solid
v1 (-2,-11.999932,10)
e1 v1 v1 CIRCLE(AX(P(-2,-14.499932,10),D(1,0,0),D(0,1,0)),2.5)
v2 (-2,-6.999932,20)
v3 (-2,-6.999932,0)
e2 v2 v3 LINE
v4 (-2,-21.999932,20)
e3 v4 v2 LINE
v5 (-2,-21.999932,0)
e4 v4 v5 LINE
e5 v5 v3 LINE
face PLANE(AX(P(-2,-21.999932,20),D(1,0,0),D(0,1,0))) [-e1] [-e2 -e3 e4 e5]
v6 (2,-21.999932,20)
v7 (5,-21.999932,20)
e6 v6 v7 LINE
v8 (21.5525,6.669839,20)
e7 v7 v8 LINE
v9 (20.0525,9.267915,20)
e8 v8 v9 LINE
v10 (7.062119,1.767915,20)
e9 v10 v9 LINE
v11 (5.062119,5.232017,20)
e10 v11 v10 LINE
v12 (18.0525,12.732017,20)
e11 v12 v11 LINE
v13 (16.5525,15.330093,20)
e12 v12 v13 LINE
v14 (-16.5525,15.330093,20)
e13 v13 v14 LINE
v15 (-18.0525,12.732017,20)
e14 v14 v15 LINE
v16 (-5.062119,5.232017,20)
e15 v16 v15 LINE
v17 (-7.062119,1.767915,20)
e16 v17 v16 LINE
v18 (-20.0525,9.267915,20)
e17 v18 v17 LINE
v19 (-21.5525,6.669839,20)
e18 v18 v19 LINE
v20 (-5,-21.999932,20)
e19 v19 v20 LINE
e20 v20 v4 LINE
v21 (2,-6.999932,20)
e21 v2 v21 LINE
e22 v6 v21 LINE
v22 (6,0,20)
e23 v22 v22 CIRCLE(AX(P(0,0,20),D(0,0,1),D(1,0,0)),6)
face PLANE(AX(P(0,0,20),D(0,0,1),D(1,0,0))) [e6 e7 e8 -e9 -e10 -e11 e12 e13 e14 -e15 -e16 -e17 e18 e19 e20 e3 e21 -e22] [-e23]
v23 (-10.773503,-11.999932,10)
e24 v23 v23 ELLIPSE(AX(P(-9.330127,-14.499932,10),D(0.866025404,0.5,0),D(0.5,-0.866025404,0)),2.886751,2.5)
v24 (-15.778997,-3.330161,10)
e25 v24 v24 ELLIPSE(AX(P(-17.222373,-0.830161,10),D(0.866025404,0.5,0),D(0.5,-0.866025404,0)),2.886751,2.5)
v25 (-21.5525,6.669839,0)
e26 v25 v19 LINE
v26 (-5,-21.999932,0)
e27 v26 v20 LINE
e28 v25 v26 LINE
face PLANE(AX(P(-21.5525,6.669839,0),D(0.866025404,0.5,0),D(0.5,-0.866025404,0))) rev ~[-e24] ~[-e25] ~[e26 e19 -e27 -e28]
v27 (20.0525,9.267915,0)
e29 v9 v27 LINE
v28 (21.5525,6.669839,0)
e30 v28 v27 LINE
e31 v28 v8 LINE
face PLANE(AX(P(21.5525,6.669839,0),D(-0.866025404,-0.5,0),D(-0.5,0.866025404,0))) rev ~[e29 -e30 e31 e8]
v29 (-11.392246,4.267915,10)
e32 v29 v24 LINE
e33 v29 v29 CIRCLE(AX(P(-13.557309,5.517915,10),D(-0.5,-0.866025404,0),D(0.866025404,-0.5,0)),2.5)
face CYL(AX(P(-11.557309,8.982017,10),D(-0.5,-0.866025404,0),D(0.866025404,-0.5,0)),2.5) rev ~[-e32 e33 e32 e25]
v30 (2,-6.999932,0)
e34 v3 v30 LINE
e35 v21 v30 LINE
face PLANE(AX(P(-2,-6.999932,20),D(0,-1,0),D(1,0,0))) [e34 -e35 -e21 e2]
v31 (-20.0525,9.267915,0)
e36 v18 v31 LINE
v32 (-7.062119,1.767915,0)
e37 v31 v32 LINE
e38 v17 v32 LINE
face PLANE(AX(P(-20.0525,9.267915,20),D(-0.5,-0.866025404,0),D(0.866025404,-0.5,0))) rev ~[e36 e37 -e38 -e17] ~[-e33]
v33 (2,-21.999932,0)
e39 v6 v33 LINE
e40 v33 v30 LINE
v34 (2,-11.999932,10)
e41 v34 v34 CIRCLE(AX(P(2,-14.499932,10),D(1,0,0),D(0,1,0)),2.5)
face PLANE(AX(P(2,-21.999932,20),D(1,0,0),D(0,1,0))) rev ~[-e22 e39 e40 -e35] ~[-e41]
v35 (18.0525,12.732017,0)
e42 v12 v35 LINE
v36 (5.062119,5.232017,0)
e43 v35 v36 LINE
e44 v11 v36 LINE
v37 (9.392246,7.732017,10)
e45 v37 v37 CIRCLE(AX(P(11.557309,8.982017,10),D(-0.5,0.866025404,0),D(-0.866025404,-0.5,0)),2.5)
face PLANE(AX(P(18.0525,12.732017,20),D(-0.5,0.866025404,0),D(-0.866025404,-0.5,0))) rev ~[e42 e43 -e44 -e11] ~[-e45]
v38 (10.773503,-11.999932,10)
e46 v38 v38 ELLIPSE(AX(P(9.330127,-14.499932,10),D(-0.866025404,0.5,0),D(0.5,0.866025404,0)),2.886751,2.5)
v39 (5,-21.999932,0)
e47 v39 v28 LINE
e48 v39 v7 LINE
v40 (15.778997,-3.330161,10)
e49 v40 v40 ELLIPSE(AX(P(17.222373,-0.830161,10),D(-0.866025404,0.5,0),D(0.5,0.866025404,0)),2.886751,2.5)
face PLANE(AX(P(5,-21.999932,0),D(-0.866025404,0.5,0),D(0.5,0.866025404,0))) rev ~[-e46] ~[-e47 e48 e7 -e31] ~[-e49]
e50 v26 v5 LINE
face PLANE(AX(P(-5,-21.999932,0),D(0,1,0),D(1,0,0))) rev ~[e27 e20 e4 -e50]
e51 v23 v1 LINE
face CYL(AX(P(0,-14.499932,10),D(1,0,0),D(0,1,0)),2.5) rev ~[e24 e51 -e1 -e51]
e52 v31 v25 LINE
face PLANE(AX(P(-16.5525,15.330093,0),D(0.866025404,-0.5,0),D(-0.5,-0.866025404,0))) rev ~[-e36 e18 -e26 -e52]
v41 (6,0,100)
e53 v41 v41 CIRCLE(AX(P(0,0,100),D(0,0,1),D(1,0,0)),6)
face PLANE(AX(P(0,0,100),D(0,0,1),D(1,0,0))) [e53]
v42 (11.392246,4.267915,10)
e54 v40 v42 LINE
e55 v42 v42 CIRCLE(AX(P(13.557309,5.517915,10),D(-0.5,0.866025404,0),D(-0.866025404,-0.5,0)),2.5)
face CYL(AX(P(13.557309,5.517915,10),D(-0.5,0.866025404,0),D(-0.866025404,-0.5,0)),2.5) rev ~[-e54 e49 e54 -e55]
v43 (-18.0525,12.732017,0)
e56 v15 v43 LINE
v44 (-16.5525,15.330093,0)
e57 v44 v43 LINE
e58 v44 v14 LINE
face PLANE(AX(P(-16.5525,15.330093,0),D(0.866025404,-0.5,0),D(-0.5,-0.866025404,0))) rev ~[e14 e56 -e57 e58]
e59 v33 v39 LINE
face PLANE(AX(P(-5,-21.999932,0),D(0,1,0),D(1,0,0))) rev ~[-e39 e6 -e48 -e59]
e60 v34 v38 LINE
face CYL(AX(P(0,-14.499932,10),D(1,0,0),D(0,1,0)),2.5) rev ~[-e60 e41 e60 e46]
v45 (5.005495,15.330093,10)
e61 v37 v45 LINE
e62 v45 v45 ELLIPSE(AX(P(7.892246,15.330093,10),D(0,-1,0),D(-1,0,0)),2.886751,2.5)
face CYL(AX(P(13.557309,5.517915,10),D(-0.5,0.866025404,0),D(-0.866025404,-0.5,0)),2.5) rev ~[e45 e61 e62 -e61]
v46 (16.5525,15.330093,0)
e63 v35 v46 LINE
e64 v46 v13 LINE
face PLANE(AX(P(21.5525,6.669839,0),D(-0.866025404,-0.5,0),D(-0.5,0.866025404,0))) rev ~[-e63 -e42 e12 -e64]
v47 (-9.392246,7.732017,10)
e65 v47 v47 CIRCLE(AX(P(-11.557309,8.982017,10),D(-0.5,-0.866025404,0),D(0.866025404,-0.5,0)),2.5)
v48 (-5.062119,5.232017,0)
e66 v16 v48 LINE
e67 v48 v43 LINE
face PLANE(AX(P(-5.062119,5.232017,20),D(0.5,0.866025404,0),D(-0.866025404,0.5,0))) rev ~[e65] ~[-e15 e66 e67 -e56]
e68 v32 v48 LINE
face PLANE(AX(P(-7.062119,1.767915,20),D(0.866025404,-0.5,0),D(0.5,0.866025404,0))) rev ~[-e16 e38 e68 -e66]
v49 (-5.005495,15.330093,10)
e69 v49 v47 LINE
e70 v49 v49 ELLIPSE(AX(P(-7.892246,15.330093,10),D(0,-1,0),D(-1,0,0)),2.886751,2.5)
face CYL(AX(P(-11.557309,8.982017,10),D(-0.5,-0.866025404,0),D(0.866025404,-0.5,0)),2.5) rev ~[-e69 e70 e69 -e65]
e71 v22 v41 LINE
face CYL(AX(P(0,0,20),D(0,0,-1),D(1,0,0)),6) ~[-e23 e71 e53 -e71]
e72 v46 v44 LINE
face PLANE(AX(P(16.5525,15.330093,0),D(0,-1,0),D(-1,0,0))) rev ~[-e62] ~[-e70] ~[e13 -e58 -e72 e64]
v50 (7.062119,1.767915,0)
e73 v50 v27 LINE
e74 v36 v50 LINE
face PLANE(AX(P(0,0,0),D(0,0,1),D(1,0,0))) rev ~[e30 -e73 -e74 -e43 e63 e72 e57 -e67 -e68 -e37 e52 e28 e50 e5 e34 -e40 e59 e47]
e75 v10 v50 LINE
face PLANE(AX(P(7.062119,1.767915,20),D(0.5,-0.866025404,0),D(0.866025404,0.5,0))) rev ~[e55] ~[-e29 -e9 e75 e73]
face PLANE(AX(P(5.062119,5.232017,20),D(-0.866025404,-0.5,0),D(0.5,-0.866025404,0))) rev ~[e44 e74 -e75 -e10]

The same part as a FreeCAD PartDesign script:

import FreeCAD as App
import Part
import Sketcher
from FreeCAD import Vector
Q = App.Units.Quantity


def add_polygon(sketch, points):
    """Adds a closed chain of lines whose ends are joined by coincident constraints."""
    first, n = sketch.GeometryCount, len(points)
    for a, b in zip(points, points[1:] + points[:1]):
        sketch.addGeometry(Part.LineSegment(App.Vector(*a, 0), App.Vector(*b, 0)), False)
    for i in range(n):
        sketch.addConstraint(Sketcher.Constraint("Coincident", first + i, 2, first + (i + 1) % n, 1))

doc = App.newDocument("Part")
body = doc.addObject("PartDesign::Body", "Body")

# Sketch on XY plane
sketch1 = body.newObject("Sketcher::SketchObject", "Sketch")
sketch1.AttachmentSupport = (doc.getObject("XY_Plane"), [""])
sketch1.MapMode = "FlatFace"
add_polygon(sketch1, [(17, 15), (-17, 15), (-22, 7), (-5, -22), (5, -22), (22, 7)])  # lines 0-5
sketch1.addConstraint(Sketcher.Constraint("Horizontal", 0))
sketch1.addConstraint(Sketcher.Constraint("Horizontal", 3))
sketch1.addConstraint(Sketcher.Constraint("Symmetric", 1, 2, 4, 2, -2))
sketch1.addConstraint(Sketcher.Constraint("Parallel", 1, 4))
sketch1.addConstraint(Sketcher.Constraint("Parallel", 2, 5))
sketch1.addConstraint(Sketcher.Constraint("Equal", 2, 4))
sketch1.addConstraint(Sketcher.Constraint("DistanceX", 3, 1, 3, 2, Q("10 mm")))
sketch1.addConstraint(Sketcher.Constraint("Angle", 1, Q("-120 deg")))
sketch1.addConstraint(Sketcher.Constraint("Distance", 1, Q("10 mm")))
sketch1.addConstraint(Sketcher.Constraint("DistanceX", 0, 2, 0, 1, Q("33.105 mm")))
sketch1.addConstraint(Sketcher.Constraint("DistanceY", -1, 1, 1, 2, Q("6.669839 mm")))
pad1 = body.newObject("PartDesign::Pad", "Pad")
pad1.Profile = sketch1
pad1.Length = 20

# Sketch on XY plane
sketch2 = body.newObject("Sketcher::SketchObject", "Sketch001")
sketch2.AttachmentSupport = (doc.getObject("XY_Plane"), [""])
sketch2.MapMode = "FlatFace"
sketch2.AttachmentOffset = App.Placement(Vector(0, 0, 20), App.Rotation())
add_polygon(sketch2, [(-2, -7), (-2, -22), (2, -22), (2, -7)])  # lines 0-3
add_polygon(sketch2, [(20.1, 9.3), (18.1, 12.7), (5.1, 5.2), (7.1, 1.8)])  # lines 4-7
add_polygon(sketch2, [(-5.1, 5.2), (-18.1, 12.7), (-20.1, 9.3), (-7.1, 1.8)])  # lines 8-11
sketch2.addConstraint(Sketcher.Constraint("Vertical", 0))
sketch2.addConstraint(Sketcher.Constraint("Horizontal", 1))
sketch2.addConstraint(Sketcher.Constraint("Vertical", 2))
sketch2.addConstraint(Sketcher.Constraint("Horizontal", 3))
sketch2.addConstraint(Sketcher.Constraint("Symmetric", 4, 2, 8, 2, -2))
sketch2.addConstraint(Sketcher.Constraint("Symmetric", 7, 2, 9, 2, -2))
sketch2.addConstraint(Sketcher.Constraint("Symmetric", 6, 2, 10, 2, -2))
sketch2.addConstraint(Sketcher.Constraint("Symmetric", 5, 2, 11, 2, -2))
sketch2.addConstraint(Sketcher.Constraint("Perpendicular", 4, 5))
sketch2.addConstraint(Sketcher.Constraint("Perpendicular", 5, 6))
sketch2.addConstraint(Sketcher.Constraint("Perpendicular", 6, 7))
sketch2.addConstraint(Sketcher.Constraint("DistanceX", 1, 1, 1, 2, Q("4 mm")))
sketch2.addConstraint(Sketcher.Constraint("DistanceY", 0, 2, 0, 1, Q("15 mm")))
sketch2.addConstraint(Sketcher.Constraint("Angle", 4, Q("120 deg")))
sketch2.addConstraint(Sketcher.Constraint("Distance", 4, Q("4 mm")))
sketch2.addConstraint(Sketcher.Constraint("Distance", 5, Q("15 mm")))
sketch2.addConstraint(Sketcher.Constraint("DistanceX", 0, 2, -1, 1, Q("2 mm")))
sketch2.addConstraint(Sketcher.Constraint("DistanceX", 8, 2, 4, 2, Q("36.105 mm")))
sketch2.addConstraint(Sketcher.Constraint("DistanceY", 2, 2, 4, 2, Q("19.731949 mm")))
sketch2.addConstraint(Sketcher.Constraint("DistanceY", 0, 2, -1, 1, Q("21.999932 mm")))
pocket1 = body.newObject("PartDesign::Pocket", "Pocket")
pocket1.Profile = sketch2
pocket1.Length = 25

# Sketch on XY plane
sketch3 = body.newObject("Sketcher::SketchObject", "Sketch002")
sketch3.AttachmentSupport = (doc.getObject("XY_Plane"), [""])
sketch3.MapMode = "FlatFace"
sketch3.AttachmentOffset = App.Placement(Vector(0, 0, 20), App.Rotation())
sketch3.addGeometry(Part.Circle(Vector(0, 0, 0), Vector(0, 0, 1), 6), False)
sketch3.addConstraint(Sketcher.Constraint("Coincident", 0, 3, -1, 1))
sketch3.addConstraint(Sketcher.Constraint("Diameter", 0, Q("12 mm")))
pad2 = body.newObject("PartDesign::Pad", "Pad001")
pad2.Profile = sketch3
pad2.Length = 80

# Sketch on YZ plane
sketch4 = body.newObject("Sketcher::SketchObject", "Sketch003")
sketch4.AttachmentSupport = (doc.getObject("YZ_Plane"), [""])
sketch4.MapMode = "FlatFace"
sketch4.addGeometry(Part.Circle(Vector(-14.5, 10, 0), Vector(0, 0, 1), 2.5), False)
sketch4.addConstraint(Sketcher.Constraint("Diameter", 0, Q("5 mm")))
sketch4.addConstraint(Sketcher.Constraint("DistanceY", -1, 1, 0, 3, Q("10 mm")))
sketch4.addConstraint(Sketcher.Constraint("DistanceX", 0, 3, -1, 1, Q("14.499932 mm")))
pocket2 = body.newObject("PartDesign::Pocket", "Pocket001")
pocket2.Profile = sketch4
pocket2.Length = 25
pocket2.Midplane = True

# Sketch on an angled plane
sketch5 = body.newObject("Sketcher::SketchObject", "Sketch004")
sketch5.Placement = App.Placement(Vector(1, 1.732051, 0), App.Rotation(Vector(0.866025404, -0.5, 0), Vector(0, 0, 1), Vector(-0.5, -0.866025404, 0), "ZXY"))
sketch5.addGeometry(Part.Circle(Vector(-14.5, 10, 0), Vector(0, 0, 1), 2.5), False)
sketch5.addConstraint(Sketcher.Constraint("Diameter", 0, Q("5 mm")))
sketch5.addConstraint(Sketcher.Constraint("DistanceY", -1, 1, 0, 3, Q("10 mm")))
sketch5.addConstraint(Sketcher.Constraint("DistanceX", 0, 3, -1, 1, Q("14.499932 mm")))
pocket3 = body.newObject("PartDesign::Pocket", "Pocket002")
pocket3.Profile = sketch5
pocket3.Length = 30
pocket3.Midplane = True

# Sketch on an angled plane
sketch6 = body.newObject("Sketcher::SketchObject", "Sketch005")
sketch6.Placement = App.Placement(Vector(1, -1.732051, 0), App.Rotation(Vector(-0.866025404, -0.5, 0), Vector(0, 0, 1), Vector(-0.5, 0.866025404, 0), "ZXY"))
sketch6.addGeometry(Part.Circle(Vector(-14.5, 10, 0), Vector(0, 0, 1), 2.5), False)
sketch6.addConstraint(Sketcher.Constraint("Diameter", 0, Q("5 mm")))
sketch6.addConstraint(Sketcher.Constraint("DistanceY", -1, 1, 0, 3, Q("10 mm")))
sketch6.addConstraint(Sketcher.Constraint("DistanceX", 0, 3, -1, 1, Q("14.499932 mm")))
pocket4 = body.newObject("PartDesign::Pocket", "Pocket003")
pocket4.Profile = sketch6
pocket4.Length = 30
pocket4.Midplane = True

doc.recompute()
